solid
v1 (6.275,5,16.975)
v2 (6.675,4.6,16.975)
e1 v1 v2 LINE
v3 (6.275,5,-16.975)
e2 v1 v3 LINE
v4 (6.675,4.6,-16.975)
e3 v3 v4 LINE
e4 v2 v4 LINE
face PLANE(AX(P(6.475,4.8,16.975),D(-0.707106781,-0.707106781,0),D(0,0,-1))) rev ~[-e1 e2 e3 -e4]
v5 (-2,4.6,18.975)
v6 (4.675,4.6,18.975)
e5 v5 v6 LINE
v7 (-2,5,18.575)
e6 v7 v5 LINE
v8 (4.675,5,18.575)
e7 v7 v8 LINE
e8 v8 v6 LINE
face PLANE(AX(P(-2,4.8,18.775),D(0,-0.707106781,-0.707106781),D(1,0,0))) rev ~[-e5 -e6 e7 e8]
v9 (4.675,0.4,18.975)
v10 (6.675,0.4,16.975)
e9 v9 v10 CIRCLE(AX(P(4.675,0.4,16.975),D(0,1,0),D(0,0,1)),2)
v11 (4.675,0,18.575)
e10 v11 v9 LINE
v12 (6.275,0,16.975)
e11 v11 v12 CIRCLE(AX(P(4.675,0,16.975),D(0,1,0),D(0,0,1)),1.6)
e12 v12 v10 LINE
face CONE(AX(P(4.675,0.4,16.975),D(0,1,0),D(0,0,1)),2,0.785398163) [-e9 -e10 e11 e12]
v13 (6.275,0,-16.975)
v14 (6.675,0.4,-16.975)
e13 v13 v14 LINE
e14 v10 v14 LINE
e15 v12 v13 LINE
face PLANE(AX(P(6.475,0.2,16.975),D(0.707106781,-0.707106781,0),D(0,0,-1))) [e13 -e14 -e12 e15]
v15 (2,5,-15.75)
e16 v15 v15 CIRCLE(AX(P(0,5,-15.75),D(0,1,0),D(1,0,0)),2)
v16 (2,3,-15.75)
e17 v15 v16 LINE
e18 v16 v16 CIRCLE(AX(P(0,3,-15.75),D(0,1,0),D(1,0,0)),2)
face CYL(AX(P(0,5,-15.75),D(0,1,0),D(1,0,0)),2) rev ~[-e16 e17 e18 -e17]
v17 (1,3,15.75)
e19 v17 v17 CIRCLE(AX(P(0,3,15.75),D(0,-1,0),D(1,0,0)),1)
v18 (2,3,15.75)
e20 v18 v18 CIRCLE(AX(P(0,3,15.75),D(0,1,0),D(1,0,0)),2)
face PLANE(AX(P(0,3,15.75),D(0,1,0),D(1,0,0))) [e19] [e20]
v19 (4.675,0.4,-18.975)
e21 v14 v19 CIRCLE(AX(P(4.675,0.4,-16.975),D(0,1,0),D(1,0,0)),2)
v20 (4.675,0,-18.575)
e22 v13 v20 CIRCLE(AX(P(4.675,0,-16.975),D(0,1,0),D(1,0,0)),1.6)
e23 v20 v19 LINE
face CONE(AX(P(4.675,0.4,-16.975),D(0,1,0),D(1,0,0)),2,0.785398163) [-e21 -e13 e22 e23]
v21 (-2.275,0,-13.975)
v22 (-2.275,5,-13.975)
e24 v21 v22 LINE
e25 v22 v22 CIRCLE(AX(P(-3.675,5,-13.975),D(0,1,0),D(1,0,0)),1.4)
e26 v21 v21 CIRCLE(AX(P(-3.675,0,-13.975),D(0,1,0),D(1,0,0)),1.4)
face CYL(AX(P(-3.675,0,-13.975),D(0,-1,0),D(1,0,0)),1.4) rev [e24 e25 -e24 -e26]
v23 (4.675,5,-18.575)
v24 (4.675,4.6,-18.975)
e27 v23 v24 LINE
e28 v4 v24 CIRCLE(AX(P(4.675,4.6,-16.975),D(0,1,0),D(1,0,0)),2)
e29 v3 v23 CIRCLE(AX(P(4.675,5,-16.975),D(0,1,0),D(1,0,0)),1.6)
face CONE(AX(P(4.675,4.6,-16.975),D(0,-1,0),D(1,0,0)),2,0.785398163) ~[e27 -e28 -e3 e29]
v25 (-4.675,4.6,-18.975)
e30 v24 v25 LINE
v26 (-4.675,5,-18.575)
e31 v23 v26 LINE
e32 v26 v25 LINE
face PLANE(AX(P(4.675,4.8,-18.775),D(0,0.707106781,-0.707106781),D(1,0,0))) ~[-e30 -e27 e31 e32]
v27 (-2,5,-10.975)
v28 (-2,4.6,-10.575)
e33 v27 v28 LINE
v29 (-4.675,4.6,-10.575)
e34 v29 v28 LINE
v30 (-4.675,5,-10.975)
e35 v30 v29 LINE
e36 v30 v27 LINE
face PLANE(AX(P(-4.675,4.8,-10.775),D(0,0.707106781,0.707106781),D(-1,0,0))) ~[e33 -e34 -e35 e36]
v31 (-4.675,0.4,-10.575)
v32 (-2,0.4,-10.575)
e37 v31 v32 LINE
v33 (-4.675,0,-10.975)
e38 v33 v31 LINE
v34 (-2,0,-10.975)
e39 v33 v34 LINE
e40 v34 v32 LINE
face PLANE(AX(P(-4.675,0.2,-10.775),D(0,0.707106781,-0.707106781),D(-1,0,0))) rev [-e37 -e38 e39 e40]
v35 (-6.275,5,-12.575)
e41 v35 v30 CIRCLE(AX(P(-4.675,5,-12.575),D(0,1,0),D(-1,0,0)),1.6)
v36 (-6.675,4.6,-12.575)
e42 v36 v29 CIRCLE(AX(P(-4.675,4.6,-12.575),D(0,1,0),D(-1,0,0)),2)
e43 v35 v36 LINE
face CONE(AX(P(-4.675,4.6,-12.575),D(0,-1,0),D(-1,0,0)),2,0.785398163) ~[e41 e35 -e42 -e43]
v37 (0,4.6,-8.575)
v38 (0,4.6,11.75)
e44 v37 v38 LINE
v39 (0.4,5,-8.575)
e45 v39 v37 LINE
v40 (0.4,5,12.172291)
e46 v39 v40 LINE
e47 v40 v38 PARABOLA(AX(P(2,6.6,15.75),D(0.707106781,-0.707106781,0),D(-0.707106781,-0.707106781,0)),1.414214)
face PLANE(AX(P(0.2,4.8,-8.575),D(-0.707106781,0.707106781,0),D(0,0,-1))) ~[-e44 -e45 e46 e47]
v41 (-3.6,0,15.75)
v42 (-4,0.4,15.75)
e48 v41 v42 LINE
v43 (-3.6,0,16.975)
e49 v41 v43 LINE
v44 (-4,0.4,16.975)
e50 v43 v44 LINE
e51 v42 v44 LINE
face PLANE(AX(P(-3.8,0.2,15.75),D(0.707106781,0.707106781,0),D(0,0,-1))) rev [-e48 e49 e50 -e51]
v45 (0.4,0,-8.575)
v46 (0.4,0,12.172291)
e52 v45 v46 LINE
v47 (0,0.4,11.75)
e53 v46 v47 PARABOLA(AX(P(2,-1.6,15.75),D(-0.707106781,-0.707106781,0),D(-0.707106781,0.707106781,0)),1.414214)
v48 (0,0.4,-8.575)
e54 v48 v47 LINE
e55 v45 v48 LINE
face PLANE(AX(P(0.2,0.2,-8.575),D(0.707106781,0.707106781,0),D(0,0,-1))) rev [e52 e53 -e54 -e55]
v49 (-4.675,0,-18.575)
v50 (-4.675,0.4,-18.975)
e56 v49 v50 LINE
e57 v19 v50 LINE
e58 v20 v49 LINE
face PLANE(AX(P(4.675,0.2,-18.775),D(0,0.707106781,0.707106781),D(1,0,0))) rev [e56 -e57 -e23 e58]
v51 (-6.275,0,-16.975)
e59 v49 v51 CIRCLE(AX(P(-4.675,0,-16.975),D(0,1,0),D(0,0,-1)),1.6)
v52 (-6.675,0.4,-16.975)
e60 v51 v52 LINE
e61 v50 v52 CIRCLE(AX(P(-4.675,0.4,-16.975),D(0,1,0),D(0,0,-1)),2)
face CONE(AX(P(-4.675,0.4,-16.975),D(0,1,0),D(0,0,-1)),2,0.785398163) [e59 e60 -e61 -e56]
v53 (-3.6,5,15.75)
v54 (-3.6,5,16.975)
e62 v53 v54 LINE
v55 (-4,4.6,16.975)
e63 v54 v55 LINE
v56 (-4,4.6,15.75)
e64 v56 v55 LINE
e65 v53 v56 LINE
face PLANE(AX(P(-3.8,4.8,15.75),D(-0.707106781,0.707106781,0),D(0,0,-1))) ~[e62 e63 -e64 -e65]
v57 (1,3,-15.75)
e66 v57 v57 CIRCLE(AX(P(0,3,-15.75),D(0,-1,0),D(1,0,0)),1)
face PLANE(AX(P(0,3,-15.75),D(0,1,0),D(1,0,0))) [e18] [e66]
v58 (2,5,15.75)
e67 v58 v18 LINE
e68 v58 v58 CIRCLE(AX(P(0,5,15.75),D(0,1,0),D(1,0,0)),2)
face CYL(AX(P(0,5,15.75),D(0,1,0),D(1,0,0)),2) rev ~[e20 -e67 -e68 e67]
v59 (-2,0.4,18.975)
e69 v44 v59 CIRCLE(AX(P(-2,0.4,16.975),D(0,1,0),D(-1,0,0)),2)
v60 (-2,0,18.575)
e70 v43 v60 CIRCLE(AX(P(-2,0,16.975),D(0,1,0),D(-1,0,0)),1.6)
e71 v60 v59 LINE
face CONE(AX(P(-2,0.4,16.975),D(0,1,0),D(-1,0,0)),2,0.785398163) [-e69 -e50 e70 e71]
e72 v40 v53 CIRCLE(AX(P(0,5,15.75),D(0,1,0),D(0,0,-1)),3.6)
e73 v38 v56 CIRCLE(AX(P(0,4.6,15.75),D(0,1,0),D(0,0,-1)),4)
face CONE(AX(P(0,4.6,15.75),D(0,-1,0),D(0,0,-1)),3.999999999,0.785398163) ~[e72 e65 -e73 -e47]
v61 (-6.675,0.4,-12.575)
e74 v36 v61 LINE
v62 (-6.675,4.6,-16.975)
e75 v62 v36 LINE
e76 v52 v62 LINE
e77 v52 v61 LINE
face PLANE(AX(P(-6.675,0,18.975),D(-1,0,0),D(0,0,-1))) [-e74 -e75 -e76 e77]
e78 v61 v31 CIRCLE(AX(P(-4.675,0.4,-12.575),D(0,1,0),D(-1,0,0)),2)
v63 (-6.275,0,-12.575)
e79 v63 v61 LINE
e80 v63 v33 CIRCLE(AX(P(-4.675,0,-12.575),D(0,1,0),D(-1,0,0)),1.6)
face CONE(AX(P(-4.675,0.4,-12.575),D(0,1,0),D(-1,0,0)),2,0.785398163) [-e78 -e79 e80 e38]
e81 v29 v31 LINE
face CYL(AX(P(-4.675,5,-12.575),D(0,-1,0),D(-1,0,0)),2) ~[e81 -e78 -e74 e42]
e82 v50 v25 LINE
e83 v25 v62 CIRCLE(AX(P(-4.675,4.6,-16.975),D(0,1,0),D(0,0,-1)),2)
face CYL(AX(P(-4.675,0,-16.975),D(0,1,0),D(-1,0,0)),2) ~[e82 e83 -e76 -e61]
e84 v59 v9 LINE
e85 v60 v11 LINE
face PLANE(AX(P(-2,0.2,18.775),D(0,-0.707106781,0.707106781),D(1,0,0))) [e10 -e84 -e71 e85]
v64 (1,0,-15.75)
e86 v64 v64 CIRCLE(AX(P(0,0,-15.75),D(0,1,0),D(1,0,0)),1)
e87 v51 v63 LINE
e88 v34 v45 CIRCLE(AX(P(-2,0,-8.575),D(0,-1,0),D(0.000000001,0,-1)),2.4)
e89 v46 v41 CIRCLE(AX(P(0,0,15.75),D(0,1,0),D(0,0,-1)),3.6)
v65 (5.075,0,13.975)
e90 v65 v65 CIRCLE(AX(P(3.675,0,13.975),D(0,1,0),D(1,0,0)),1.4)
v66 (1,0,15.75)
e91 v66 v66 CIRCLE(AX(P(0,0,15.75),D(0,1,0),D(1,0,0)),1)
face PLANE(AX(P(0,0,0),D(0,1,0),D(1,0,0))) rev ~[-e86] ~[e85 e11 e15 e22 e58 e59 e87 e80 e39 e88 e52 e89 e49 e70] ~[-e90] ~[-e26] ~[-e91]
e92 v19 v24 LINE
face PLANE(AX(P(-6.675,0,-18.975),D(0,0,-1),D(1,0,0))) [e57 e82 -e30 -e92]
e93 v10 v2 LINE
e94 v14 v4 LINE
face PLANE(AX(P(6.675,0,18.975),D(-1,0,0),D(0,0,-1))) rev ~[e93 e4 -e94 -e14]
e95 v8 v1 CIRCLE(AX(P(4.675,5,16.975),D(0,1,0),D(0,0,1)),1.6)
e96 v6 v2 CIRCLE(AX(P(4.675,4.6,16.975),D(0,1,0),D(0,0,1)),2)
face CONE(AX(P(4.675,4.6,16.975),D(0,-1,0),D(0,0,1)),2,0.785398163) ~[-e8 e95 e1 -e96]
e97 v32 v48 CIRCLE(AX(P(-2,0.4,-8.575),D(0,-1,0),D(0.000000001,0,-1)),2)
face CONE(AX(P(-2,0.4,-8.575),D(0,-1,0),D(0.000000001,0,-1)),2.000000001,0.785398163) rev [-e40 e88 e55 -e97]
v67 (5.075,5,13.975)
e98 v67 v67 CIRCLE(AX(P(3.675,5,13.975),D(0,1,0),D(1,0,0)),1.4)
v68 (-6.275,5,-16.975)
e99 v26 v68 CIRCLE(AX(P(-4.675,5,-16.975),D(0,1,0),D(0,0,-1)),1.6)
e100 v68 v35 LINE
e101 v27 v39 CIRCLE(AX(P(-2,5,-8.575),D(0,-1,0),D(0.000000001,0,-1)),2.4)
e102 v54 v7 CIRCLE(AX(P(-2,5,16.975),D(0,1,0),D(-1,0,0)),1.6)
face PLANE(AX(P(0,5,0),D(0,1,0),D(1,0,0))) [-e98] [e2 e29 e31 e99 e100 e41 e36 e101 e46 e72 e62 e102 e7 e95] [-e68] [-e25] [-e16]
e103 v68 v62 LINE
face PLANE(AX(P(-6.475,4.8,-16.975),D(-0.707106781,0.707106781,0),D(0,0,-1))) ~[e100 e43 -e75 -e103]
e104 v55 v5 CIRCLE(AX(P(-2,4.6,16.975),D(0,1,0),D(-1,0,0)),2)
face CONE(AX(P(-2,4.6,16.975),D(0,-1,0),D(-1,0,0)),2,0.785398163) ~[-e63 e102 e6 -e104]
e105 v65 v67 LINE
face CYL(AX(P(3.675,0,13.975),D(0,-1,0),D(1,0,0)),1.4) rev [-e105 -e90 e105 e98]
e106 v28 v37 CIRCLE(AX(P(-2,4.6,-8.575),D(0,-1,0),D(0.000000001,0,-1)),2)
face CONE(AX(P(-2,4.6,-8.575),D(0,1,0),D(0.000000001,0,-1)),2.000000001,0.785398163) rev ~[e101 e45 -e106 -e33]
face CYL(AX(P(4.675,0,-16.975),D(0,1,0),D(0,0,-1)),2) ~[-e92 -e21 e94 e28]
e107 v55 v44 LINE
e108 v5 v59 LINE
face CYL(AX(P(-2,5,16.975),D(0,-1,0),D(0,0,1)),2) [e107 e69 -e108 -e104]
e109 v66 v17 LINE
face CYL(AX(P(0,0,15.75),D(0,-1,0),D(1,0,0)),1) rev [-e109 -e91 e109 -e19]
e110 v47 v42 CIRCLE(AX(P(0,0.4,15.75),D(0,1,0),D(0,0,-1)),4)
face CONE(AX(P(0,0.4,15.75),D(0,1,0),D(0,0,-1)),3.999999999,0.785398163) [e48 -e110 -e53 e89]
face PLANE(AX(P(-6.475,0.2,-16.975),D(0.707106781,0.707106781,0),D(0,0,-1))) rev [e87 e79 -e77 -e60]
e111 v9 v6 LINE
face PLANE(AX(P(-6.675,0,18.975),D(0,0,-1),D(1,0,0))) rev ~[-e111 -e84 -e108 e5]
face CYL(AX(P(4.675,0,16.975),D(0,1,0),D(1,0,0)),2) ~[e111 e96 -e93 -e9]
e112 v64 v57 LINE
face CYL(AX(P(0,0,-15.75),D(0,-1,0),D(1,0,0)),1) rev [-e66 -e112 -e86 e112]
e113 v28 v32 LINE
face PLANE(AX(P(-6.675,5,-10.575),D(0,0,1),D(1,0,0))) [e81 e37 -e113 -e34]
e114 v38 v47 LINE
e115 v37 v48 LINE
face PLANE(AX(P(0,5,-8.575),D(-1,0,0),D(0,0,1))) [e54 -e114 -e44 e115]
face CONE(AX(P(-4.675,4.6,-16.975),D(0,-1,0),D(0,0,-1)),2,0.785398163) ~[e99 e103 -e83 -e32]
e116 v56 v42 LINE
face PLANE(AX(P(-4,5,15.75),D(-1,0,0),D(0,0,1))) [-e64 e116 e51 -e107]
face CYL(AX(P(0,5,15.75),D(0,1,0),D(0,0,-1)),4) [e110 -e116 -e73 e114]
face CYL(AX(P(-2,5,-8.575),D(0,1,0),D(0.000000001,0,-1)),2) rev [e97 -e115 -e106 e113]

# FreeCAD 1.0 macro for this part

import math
import FreeCAD as App
import Part
import Sketcher
Q = App.Units.Quantity


def edges_at(feature, points):
    """Names of the edges that pass closest to the given points."""
    edges = feature.Shape.Edges
    near = lambda p: min(range(len(edges)), key=lambda i: edges[i].distToShape(Part.Vertex(*p))[0])
    return sorted({f"Edge{near(p) + 1}" for p in points})


def add_polygon(sketch, points):
    """Adds a closed chain of lines whose ends are joined by coincident constraints."""
    first, n = sketch.GeometryCount, len(points)
    for a, b in zip(points, points[1:] + points[:1]):
        sketch.addGeometry(Part.LineSegment(App.Vector(*a, 0), App.Vector(*b, 0)), False)
    for i in range(n):
        sketch.addConstraint(Sketcher.Constraint("Coincident", first + i, 2, first + (i + 1) % n, 1))

doc = App.newDocument("Part")
body = doc.addObject("PartDesign::Body", "Body")

# Sketch on XZ plane
sketch1 = body.newObject("Sketcher::SketchObject", "Sketch")
sketch1.AttachmentSupport = (doc.getObject("XZ_Plane"), [""])
sketch1.MapMode = "FlatFace"
add_polygon(sketch1, [(-6.7, -19), (-6.7, 19), (6.7, 19), (6.7, -19)])  # lines 0-3
sketch1.addGeometry(Part.Circle(App.Vector(0, 15.8, 0), App.Vector(0, 0, 1), 1), False)  # 4
sketch1.addGeometry(Part.Circle(App.Vector(3.7, 14, 0), App.Vector(0, 0, 1), 1.4), False)  # 5
sketch1.addGeometry(Part.Circle(App.Vector(-3.7, -14, 0), App.Vector(0, 0, 1), 1.4), False)  # 6
sketch1.addGeometry(Part.Circle(App.Vector(0, -15.8, 0), App.Vector(0, 0, 1), 1), False)  # 7
sketch1.addConstraint([
    Sketcher.Constraint("Vertical", 0),
    Sketcher.Constraint("Horizontal", 1),
    Sketcher.Constraint("Vertical", 2),
    Sketcher.Constraint("Horizontal", 3),
    Sketcher.Constraint("Equal", 5, 6),
    Sketcher.Constraint("Equal", 4, 7),
    Sketcher.Constraint("Symmetric", 5, 3, 6, 3, -1, 1),
    Sketcher.Constraint("Symmetric", 4, 3, 7, 3, -1, 1),
    Sketcher.Constraint("Symmetric", 0, 2, 2, 2, -1, 1),
    Sketcher.Constraint("PointOnObject", 4, 3, -2),
    Sketcher.Constraint("Diameter", 4, Q("2 mm")),
    Sketcher.Constraint("Diameter", 5, Q("2.8 mm")),
    Sketcher.Constraint("DistanceY", 5, 3, 0, 2, Q("5 mm")),
    Sketcher.Constraint("DistanceX", 0, 2, 6, 3, Q("3 mm")),
    Sketcher.Constraint("DistanceX", 1, 1, 1, 2, Q("13.35 mm")),
    Sketcher.Constraint("DistanceY", 0, 1, 0, 2, Q("37.95 mm")),
    Sketcher.Constraint("DistanceY", 7, 3, 4, 3, Q("31.5 mm")),
])
pad1 = body.newObject("PartDesign::Pad", "Pad")
pad1.Profile = sketch1
pad1.Length = 5
pad1.Reversed = True

# Sketch on XZ plane
sketch2 = body.newObject("Sketcher::SketchObject", "Sketch001")
sketch2.AttachmentSupport = (doc.getObject("XZ_Plane"), [""])
sketch2.MapMode = "FlatFace"
sketch2.AttachmentOffset = App.Placement(App.Vector(0, 0, -5), App.Rotation())
sketch2.addGeometry([
    Part.Circle(App.Vector(0, -15.8, 0), App.Vector(0, 0, 1), 2),
    Part.Circle(App.Vector(0, 15.8, 0), App.Vector(0, 0, 1), 2),
], False)
sketch2.addConstraint([
    Sketcher.Constraint("Equal", 0, 1),
    Sketcher.Constraint("Symmetric", 0, 3, 1, 3, -1, 1),
    Sketcher.Constraint("PointOnObject", 0, 3, -2),
    Sketcher.Constraint("Diameter", 0, Q("4 mm")),
    Sketcher.Constraint("DistanceY", 0, 3, 1, 3, Q("31.5 mm")),
])
pocket1 = body.newObject("PartDesign::Pocket", "Pocket")
pocket1.Profile = sketch2
pocket1.Length = 2
pocket1.Reversed = True

# Sketch on XZ plane
sketch3 = body.newObject("Sketcher::SketchObject", "Sketch002")
sketch3.AttachmentSupport = (doc.getObject("XZ_Plane"), [""])
sketch3.MapMode = "FlatFace"
sketch3.AttachmentOffset = App.Placement(App.Vector(0, 0, -5), App.Rotation())
sketch3.addGeometry([
    Part.LineSegment(App.Vector(-2, -10.6, 0), App.Vector(-6.7, -10.6, 0)),  # 0
    Part.LineSegment(App.Vector(-6.7, -10.6, 0), App.Vector(-6.7, 19, 0)),  # 1
    Part.LineSegment(App.Vector(-6.7, 19, 0), App.Vector(-4, 19, 0)),  # 2
    Part.LineSegment(App.Vector(-4, 19, 0), App.Vector(-4, 15.8, 0)),  # 3
    Part.ArcOfCircle(Part.Circle(App.Vector(0, 15.7, 0), App.Vector(0, 0, 1), 4), math.radians(180), math.radians(270)),  # 4
    Part.LineSegment(App.Vector(0, 11.8, 0), App.Vector(0, -8.6, 0)),  # 5
    Part.ArcOfCircle(Part.Circle(App.Vector(-2, -8.6, 0), App.Vector(0, 0, 1), 2), math.radians(-90), math.radians(0)),  # 6
], False)
sketch3.addConstraint([
    Sketcher.Constraint("Coincident", 0, 2, 1, 1),
    Sketcher.Constraint("Coincident", 1, 2, 2, 1),
    Sketcher.Constraint("Coincident", 2, 2, 3, 1),
    Sketcher.Constraint("Tangent", 3, 2, 4, 1),
    Sketcher.Constraint("Coincident", 4, 2, 5, 1),
    Sketcher.Constraint("Tangent", 5, 2, 6, 2),
    Sketcher.Constraint("Tangent", 6, 1, 0, 1),
    Sketcher.Constraint("Horizontal", 0),
    Sketcher.Constraint("Vertical", 1),
    Sketcher.Constraint("Horizontal", 2),
    Sketcher.Constraint("Vertical", 3),
    Sketcher.Constraint("Vertical", 5),
    Sketcher.Constraint("PointOnObject", 4, 3, -2),
    Sketcher.Constraint("PointOnObject", 4, 2, -2),
    Sketcher.Constraint("Radius", 4, Q("4 mm")),
    Sketcher.Constraint("Radius", 6, Q("2 mm")),
    Sketcher.Constraint("DistanceY", 1, 1, 1, 2, Q("29.55 mm")),
    Sketcher.Constraint("DistanceX", 0, 2, 0, 1, Q("4.675 mm")),
    Sketcher.Constraint("DistanceY", 3, 2, 3, 1, Q("3.225 mm")),
    Sketcher.Constraint("DistanceY", -1, 1, 4, 3, Q("15.75 mm")),
])
pocket2 = body.newObject("PartDesign::Pocket", "Pocket001")
pocket2.Profile = sketch3
pocket2.Type = "ThroughAll"
pocket2.Reversed = True
doc.recompute()

fillet = body.newObject("PartDesign::Fillet", "Fillet")
fillet.Base = (pocket2, edges_at(pocket2, [
    (-6.675, 2.5, -10.575),
    (-4, 2.5, 18.975),
    (-6.675, 2.5, -18.975),
    (6.675, 2.5, -18.975),
    (6.675, 2.5, 18.975),
]))
fillet.Radius = 2
doc.recompute()

chamfer = body.newObject("PartDesign::Chamfer", "Chamfer")
chamfer.Base = (fillet, edges_at(fillet, [
    (-3.337, 0, -10.575),
    (-0.586, 0, -9.989),
    (0, 0, 1.587),
    (-2.828, 0, 12.922),
    (-2.828, 5, 12.922),
    (0, 5, 1.587),
    (-0.586, 5, -9.989),
    (-3.337, 5, -10.575),
    (-6.675, 0, -14.775),
    (-6.675, 5, -14.775),
    (-4, 5, 16.363),
    (1.337, 5, 18.975),
    (6.675, 5, 0),
    (0, 5, -18.975),
    (-3.414, 5, 18.389),
    (6.089, 5, 18.389),
    (6.089, 5, -18.389),
    (-6.089, 5, -18.389),
    (-6.089, 5, -11.161),
    (0, 0, -18.975),
    (6.675, 0, 0),
    (1.337, 0, 18.975),
    (-4, 0, 16.363),
    (-3.414, 0, 18.389),
    (6.089, 0, 18.389),
    (6.089, 0, -18.389),
    (-6.089, 0, -18.389),
    (-6.089, 0, -11.161),
]))
chamfer.Size = 0.4

doc.recompute()
